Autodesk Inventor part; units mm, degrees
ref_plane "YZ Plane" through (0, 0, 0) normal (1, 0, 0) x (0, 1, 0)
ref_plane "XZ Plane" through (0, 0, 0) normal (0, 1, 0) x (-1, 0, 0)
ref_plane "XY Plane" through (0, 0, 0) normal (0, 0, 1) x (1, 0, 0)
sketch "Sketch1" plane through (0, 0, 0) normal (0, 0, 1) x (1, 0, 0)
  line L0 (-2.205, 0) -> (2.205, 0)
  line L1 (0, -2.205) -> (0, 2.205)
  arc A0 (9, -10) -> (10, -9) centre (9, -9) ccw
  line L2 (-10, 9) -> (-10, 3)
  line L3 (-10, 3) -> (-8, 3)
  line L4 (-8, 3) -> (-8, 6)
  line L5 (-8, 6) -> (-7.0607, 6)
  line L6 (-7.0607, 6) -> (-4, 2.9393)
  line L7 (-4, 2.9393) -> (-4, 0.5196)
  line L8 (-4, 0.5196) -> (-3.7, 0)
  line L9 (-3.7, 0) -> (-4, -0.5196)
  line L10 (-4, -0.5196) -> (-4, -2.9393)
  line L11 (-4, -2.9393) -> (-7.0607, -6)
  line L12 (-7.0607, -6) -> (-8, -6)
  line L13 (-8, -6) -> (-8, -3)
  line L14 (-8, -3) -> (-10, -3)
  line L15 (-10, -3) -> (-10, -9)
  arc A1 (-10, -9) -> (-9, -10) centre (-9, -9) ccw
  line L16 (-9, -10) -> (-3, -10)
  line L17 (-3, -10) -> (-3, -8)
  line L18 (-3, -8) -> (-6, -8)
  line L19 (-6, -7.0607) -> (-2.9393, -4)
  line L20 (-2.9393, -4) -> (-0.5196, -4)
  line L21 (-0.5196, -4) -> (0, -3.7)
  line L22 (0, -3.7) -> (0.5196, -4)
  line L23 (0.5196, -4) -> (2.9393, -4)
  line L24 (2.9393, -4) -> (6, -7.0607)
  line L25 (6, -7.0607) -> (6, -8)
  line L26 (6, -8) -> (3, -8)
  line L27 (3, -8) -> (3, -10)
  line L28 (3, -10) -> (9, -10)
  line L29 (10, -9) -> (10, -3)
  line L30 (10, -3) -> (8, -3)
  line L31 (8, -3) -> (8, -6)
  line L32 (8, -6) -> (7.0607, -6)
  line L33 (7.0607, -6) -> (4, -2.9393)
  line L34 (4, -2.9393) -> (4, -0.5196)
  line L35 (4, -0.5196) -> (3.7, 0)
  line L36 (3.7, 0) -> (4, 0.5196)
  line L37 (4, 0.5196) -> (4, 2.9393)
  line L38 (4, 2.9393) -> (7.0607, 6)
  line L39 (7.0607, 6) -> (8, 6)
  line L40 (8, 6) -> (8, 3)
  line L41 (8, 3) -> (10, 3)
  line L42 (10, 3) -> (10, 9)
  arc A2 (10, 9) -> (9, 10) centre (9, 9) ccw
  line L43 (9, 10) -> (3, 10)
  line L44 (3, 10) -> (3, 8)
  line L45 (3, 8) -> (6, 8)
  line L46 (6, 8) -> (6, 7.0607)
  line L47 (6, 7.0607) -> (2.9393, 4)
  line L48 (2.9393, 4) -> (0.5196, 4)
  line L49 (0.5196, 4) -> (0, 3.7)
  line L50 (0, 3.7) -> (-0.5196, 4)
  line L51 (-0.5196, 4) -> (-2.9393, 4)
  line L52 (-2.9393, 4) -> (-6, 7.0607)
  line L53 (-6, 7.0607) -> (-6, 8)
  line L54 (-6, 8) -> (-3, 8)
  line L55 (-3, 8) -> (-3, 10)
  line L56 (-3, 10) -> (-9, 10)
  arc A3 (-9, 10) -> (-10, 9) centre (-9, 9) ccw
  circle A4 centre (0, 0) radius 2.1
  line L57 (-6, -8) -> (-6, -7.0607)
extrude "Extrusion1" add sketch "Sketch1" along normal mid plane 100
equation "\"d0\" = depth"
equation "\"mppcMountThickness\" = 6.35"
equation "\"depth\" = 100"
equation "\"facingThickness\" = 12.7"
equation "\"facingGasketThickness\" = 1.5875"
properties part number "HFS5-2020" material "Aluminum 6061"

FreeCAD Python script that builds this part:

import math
import FreeCAD as App
import Part
import Sketcher

V = App.Vector
Q = App.Units.Quantity

doc = App.newDocument("Part")
body = doc.addObject("PartDesign::Body", "Body")

# Sketch on XY plane
sketch1 = body.newObject("Sketcher::SketchObject", "Sketch")
sketch1.AttachmentSupport = (doc.getObject("XY_Plane"), [""])
sketch1.MapMode = "FlatFace"
sketch1.addGeometry([
    Part.LineSegment(V(3, -10, 0), V(9, -10, 0)),  # 0
    Part.ArcOfCircle(Part.Circle(V(9, -9, 0), V(0, 0, 1), 1), math.radians(-90), math.radians(0)),  # 1
    Part.LineSegment(V(10, -9, 0), V(10, -3, 0)),  # 2
    Part.LineSegment(V(10, -3, 0), V(8, -3, 0)),  # 3
    Part.LineSegment(V(8, -3, 0), V(8, -6, 0)),  # 4
    Part.LineSegment(V(8, -6, 0), V(7.1, -6, 0)),  # 5
    Part.LineSegment(V(7.1, -6, 0), V(4, -2.9, 0)),  # 6
    Part.LineSegment(V(4, -2.9, 0), V(4, -0.5, 0)),  # 7
    Part.LineSegment(V(4, -0.5, 0), V(3.7, 0, 0)),  # 8
    Part.LineSegment(V(3.7, 0, 0), V(4, 0.5, 0)),  # 9
    Part.LineSegment(V(4, 0.5, 0), V(4, 2.9, 0)),  # 10
    Part.LineSegment(V(4, 2.9, 0), V(7.1, 6, 0)),  # 11
    Part.LineSegment(V(7.1, 6, 0), V(8, 6, 0)),  # 12
    Part.LineSegment(V(8, 6, 0), V(8, 3, 0)),  # 13
    Part.LineSegment(V(8, 3, 0), V(10, 3, 0)),  # 14
    Part.LineSegment(V(10, 3, 0), V(10, 9, 0)),  # 15
    Part.ArcOfCircle(Part.Circle(V(9, 9, 0), V(0, 0, 1), 1), math.radians(0), math.radians(90)),  # 16
    Part.LineSegment(V(9, 10, 0), V(3, 10, 0)),  # 17
    Part.LineSegment(V(3, 10, 0), V(3, 8, 0)),  # 18
    Part.LineSegment(V(3, 8, 0), V(6, 8, 0)),  # 19
    Part.LineSegment(V(6, 8, 0), V(6, 7.1, 0)),  # 20
    Part.LineSegment(V(6, 7.1, 0), V(2.9, 4, 0)),  # 21
    Part.LineSegment(V(2.9, 4, 0), V(0.5, 4, 0)),  # 22
    Part.LineSegment(V(0.5, 4, 0), V(0, 3.7, 0)),  # 23
    Part.LineSegment(V(0, 3.7, 0), V(-0.5, 4, 0)),  # 24
    Part.LineSegment(V(-0.5, 4, 0), V(-2.9, 4, 0)),  # 25
    Part.LineSegment(V(-2.9, 4, 0), V(-6, 7.1, 0)),  # 26
    Part.LineSegment(V(-6, 7.1, 0), V(-6, 8, 0)),  # 27
    Part.LineSegment(V(-6, 8, 0), V(-3, 8, 0)),  # 28
    Part.LineSegment(V(-3, 8, 0), V(-3, 10, 0)),  # 29
    Part.LineSegment(V(-3, 10, 0), V(-9, 10, 0)),  # 30
    Part.ArcOfCircle(Part.Circle(V(-9, 9, 0), V(0, 0, 1), 1), math.radians(90), math.radians(180)),  # 31
    Part.LineSegment(V(-10, 9, 0), V(-10, 3, 0)),  # 32
    Part.LineSegment(V(-10, 3, 0), V(-8, 3, 0)),  # 33
    Part.LineSegment(V(-8, 3, 0), V(-8, 6, 0)),  # 34
    Part.LineSegment(V(-8, 6, 0), V(-7.1, 6, 0)),  # 35
    Part.LineSegment(V(-7.1, 6, 0), V(-4, 2.9, 0)),  # 36
    Part.LineSegment(V(-4, 2.9, 0), V(-4, 0.5, 0)),  # 37
    Part.LineSegment(V(-4, 0.5, 0), V(-3.7, 0, 0)),  # 38
    Part.LineSegment(V(-3.7, 0, 0), V(-4, -0.5, 0)),  # 39
    Part.LineSegment(V(-4, -0.5, 0), V(-4, -2.9, 0)),  # 40
    Part.LineSegment(V(-4, -2.9, 0), V(-7.1, -6, 0)),  # 41
    Part.LineSegment(V(-7.1, -6, 0), V(-8, -6, 0)),  # 42
    Part.LineSegment(V(-8, -6, 0), V(-8, -3, 0)),  # 43
    Part.LineSegment(V(-8, -3, 0), V(-10, -3, 0)),  # 44
    Part.LineSegment(V(-10, -3, 0), V(-10, -9, 0)),  # 45
    Part.ArcOfCircle(Part.Circle(V(-9, -9, 0), V(0, 0, 1), 1), math.radians(180), math.radians(270)),  # 46
    Part.LineSegment(V(-9, -10, 0), V(-3, -10, 0)),  # 47
    Part.LineSegment(V(-3, -10, 0), V(-3, -8, 0)),  # 48
    Part.LineSegment(V(-3, -8, 0), V(-6, -8, 0)),  # 49
    Part.LineSegment(V(-6, -8, 0), V(-6, -7.1, 0)),  # 50
    Part.LineSegment(V(-6, -7.1, 0), V(-2.9, -4, 0)),  # 51
    Part.LineSegment(V(-2.9, -4, 0), V(-0.5, -4, 0)),  # 52
    Part.LineSegment(V(-0.5, -4, 0), V(0, -3.7, 0)),  # 53
    Part.LineSegment(V(0, -3.7, 0), V(0.5, -4, 0)),  # 54
    Part.LineSegment(V(0.5, -4, 0), V(2.9, -4, 0)),  # 55
    Part.LineSegment(V(2.9, -4, 0), V(6, -7.1, 0)),  # 56
    Part.LineSegment(V(6, -7.1, 0), V(6, -8, 0)),  # 57
    Part.LineSegment(V(6, -8, 0), V(3, -8, 0)),  # 58
    Part.LineSegment(V(3, -8, 0), V(3, -10, 0)),  # 59
    Part.Circle(V(0, 0, 0), V(0, 0, 1), 2.1),  # 60
], False)
sketch1.addConstraint([
    Sketcher.Constraint("Tangent", 0, 2, 1, 1),
    Sketcher.Constraint("Tangent", 1, 2, 2, 1),
    Sketcher.Constraint("Coincident", 2, 2, 3, 1),
    Sketcher.Constraint("Coincident", 3, 2, 4, 1),
    Sketcher.Constraint("Coincident", 4, 2, 5, 1),
    Sketcher.Constraint("Coincident", 5, 2, 6, 1),
    Sketcher.Constraint("Coincident", 6, 2, 7, 1),
    Sketcher.Constraint("Coincident", 7, 2, 8, 1),
    Sketcher.Constraint("Coincident", 8, 2, 9, 1),
    Sketcher.Constraint("Coincident", 9, 2, 10, 1),
    Sketcher.Constraint("Coincident", 10, 2, 11, 1),
    Sketcher.Constraint("Coincident", 11, 2, 12, 1),
    Sketcher.Constraint("Coincident", 12, 2, 13, 1),
    Sketcher.Constraint("Coincident", 13, 2, 14, 1),
    Sketcher.Constraint("Coincident", 14, 2, 15, 1),
    Sketcher.Constraint("Tangent", 15, 2, 16, 1),
    Sketcher.Constraint("Tangent", 16, 2, 17, 1),
    Sketcher.Constraint("Coincident", 17, 2, 18, 1),
    Sketcher.Constraint("Coincident", 18, 2, 19, 1),
    Sketcher.Constraint("Coincident", 19, 2, 20, 1),
    Sketcher.Constraint("Coincident", 20, 2, 21, 1),
    Sketcher.Constraint("Coincident", 21, 2, 22, 1),
    Sketcher.Constraint("Coincident", 22, 2, 23, 1),
    Sketcher.Constraint("Coincident", 23, 2, 24, 1),
    Sketcher.Constraint("Coincident", 24, 2, 25, 1),
    Sketcher.Constraint("Coincident", 25, 2, 26, 1),
    Sketcher.Constraint("Coincident", 26, 2, 27, 1),
    Sketcher.Constraint("Coincident", 27, 2, 28, 1),
    Sketcher.Constraint("Coincident", 28, 2, 29, 1),
    Sketcher.Constraint("Coincident", 29, 2, 30, 1),
    Sketcher.Constraint("Tangent", 30, 2, 31, 1),
    Sketcher.Constraint("Tangent", 31, 2, 32, 1),
    Sketcher.Constraint("Coincident", 32, 2, 33, 1),
    Sketcher.Constraint("Coincident", 33, 2, 34, 1),
    Sketcher.Constraint("Coincident", 34, 2, 35, 1),
    Sketcher.Constraint("Coincident", 35, 2, 36, 1),
    Sketcher.Constraint("Coincident", 36, 2, 37, 1),
    Sketcher.Constraint("Coincident", 37, 2, 38, 1),
    Sketcher.Constraint("Coincident", 38, 2, 39, 1),
    Sketcher.Constraint("Coincident", 39, 2, 40, 1),
    Sketcher.Constraint("Coincident", 40, 2, 41, 1),
    Sketcher.Constraint("Coincident", 41, 2, 42, 1),
    Sketcher.Constraint("Coincident", 42, 2, 43, 1),
    Sketcher.Constraint("Coincident", 43, 2, 44, 1),
    Sketcher.Constraint("Coincident", 44, 2, 45, 1),
    Sketcher.Constraint("Tangent", 45, 2, 46, 1),
    Sketcher.Constraint("Tangent", 46, 2, 47, 1),
    Sketcher.Constraint("Coincident", 47, 2, 48, 1),
    Sketcher.Constraint("Coincident", 48, 2, 49, 1),
    Sketcher.Constraint("Coincident", 49, 2, 50, 1),
    Sketcher.Constraint("Coincident", 50, 2, 51, 1),
    Sketcher.Constraint("Coincident", 51, 2, 52, 1),
    Sketcher.Constraint("Coincident", 52, 2, 53, 1),
    Sketcher.Constraint("Coincident", 53, 2, 54, 1),
    Sketcher.Constraint("Coincident", 54, 2, 55, 1),
    Sketcher.Constraint("Coincident", 55, 2, 56, 1),
    Sketcher.Constraint("Coincident", 56, 2, 57, 1),
    Sketcher.Constraint("Coincident", 57, 2, 58, 1),
    Sketcher.Constraint("Coincident", 58, 2, 59, 1),
    Sketcher.Constraint("Coincident", 59, 2, 0, 1),
    Sketcher.Constraint("Horizontal", 0),
    Sketcher.Constraint("Vertical", 2),
    Sketcher.Constraint("Horizontal", 3),
    Sketcher.Constraint("Vertical", 4),
    Sketcher.Constraint("Horizontal", 5),
    Sketcher.Constraint("Vertical", 7),
    Sketcher.Constraint("Vertical", 10),
    Sketcher.Constraint("Horizontal", 12),
    Sketcher.Constraint("Vertical", 13),
    Sketcher.Constraint("Horizontal", 14),
    Sketcher.Constraint("Vertical", 15),
    Sketcher.Constraint("Horizontal", 17),
    Sketcher.Constraint("Vertical", 18),
    Sketcher.Constraint("Horizontal", 19),
    Sketcher.Constraint("Vertical", 20),
    Sketcher.Constraint("Horizontal", 22),
    Sketcher.Constraint("Horizontal", 25),
    Sketcher.Constraint("Vertical", 27),
    Sketcher.Constraint("Horizontal", 28),
    Sketcher.Constraint("Vertical", 29),
    Sketcher.Constraint("Horizontal", 30),
    Sketcher.Constraint("Vertical", 32),
    Sketcher.Constraint("Horizontal", 33),
    Sketcher.Constraint("Vertical", 34),
    Sketcher.Constraint("Horizontal", 35),
    Sketcher.Constraint("Vertical", 37),
    Sketcher.Constraint("Vertical", 40),
    Sketcher.Constraint("Horizontal", 42),
    Sketcher.Constraint("Vertical", 43),
    Sketcher.Constraint("Horizontal", 44),
    Sketcher.Constraint("Vertical", 45),
    Sketcher.Constraint("Horizontal", 47),
    Sketcher.Constraint("Vertical", 48),
    Sketcher.Constraint("Horizontal", 49),
    Sketcher.Constraint("Vertical", 50),
    Sketcher.Constraint("Horizontal", 52),
    Sketcher.Constraint("Horizontal", 55),
    Sketcher.Constraint("Vertical", 57),
    Sketcher.Constraint("Horizontal", 58),
    Sketcher.Constraint("Vertical", 59),
    Sketcher.Constraint("Coincident", 60, 3, -1, 1),
    Sketcher.Constraint("Equal", 1, 16),
    Sketcher.Constraint("Equal", 16, 31),
    Sketcher.Constraint("Equal", 31, 46),
    Sketcher.Constraint("Symmetric", 1, 3, 31, 3, -1, 1),
    Sketcher.Constraint("Symmetric", 16, 3, 46, 3, -1, 1),
    Sketcher.Constraint("Symmetric", 3, 2, 33, 2, -1, 1),
    Sketcher.Constraint("Symmetric", 5, 2, 35, 2, -1, 1),
    Sketcher.Constraint("Symmetric", 6, 2, 36, 2, -1, 1),
    Sketcher.Constraint("Symmetric", 8, 2, 38, 2, -1, 1),
    Sketcher.Constraint("Symmetric", 9, 2, 39, 2, -1, 1),
    Sketcher.Constraint("Symmetric", 11, 2, 41, 2, -1, 1),
    Sketcher.Constraint("Symmetric", 13, 2, 43, 2, -1, 1),
    Sketcher.Constraint("Symmetric", 18, 2, 48, 2, -1, 1),
    Sketcher.Constraint("Symmetric", 20, 2, 50, 2, -1, 1),
    Sketcher.Constraint("Symmetric", 21, 2, 51, 2, -1, 1),
    Sketcher.Constraint("Symmetric", 23, 2, 53, 2, -1, 1),
    Sketcher.Constraint("Symmetric", 24, 2, 54, 2, -1, 1),
    Sketcher.Constraint("Symmetric", 26, 2, 56, 2, -1, 1),
    Sketcher.Constraint("Symmetric", 28, 2, 58, 2, -1, 1),
    Sketcher.Constraint("Symmetric", 16, 3, 31, 3, -2),
    Sketcher.Constraint("Symmetric", 22, 2, 24, 2, -2),
    Sketcher.Constraint("Symmetric", 20, 2, 26, 2, -2),
    Sketcher.Constraint("Symmetric", 18, 2, 28, 2, -2),
    Sketcher.Constraint("Symmetric", 13, 2, 33, 2, -2),
    Sketcher.Constraint("Symmetric", 11, 2, 35, 2, -2),
    Sketcher.Constraint("Symmetric", 10, 2, 36, 2, -2),
    Sketcher.Constraint("PointOnObject", 8, 2, -1),
    Sketcher.Constraint("PointOnObject", 23, 2, -2),
    Sketcher.Constraint("Perpendicular", 6, 11),
    Sketcher.Constraint("Parallel", 11, 21),
    Sketcher.Constraint("Perpendicular", 8, 23),
    Sketcher.Constraint("Perpendicular", 9, 24),
    Sketcher.Constraint("Perpendicular", 21, 26),
    Sketcher.Constraint("Perpendicular", 23, 38),
    Sketcher.Constraint("Perpendicular", 36, 41),
    Sketcher.Constraint("Perpendicular", 38, 53),
    Sketcher.Constraint("Perpendicular", 51, 56),
    Sketcher.Constraint("Equal", 47, 2),
    Sketcher.Constraint("Equal", 58, 4),
    Sketcher.Constraint("Equal", 55, 7),
    Sketcher.Constraint("Equal", 44, 18),
    Sketcher.Constraint("Equal", 42, 20),
    Sketcher.Constraint("Equal", 11, 21),
    Sketcher.Constraint("Equal", 9, 23),
    Sketcher.Constraint("Radius", 1, 1.0),
    Sketcher.Constraint("Diameter", 60, 4.2),
    Sketcher.Constraint("DistanceX", 0, 1, 0, 2, 6.0),
    Sketcher.Constraint("DistanceX", 3, 2, 3, 1, 2.0),
    Sketcher.Constraint("DistanceX", 19, 1, 19, 2, 3.0),
    Sketcher.Constraint("Angle", 8, Q("120.0007 deg")),
    Sketcher.Constraint("DistanceX", -1, 1, 1, 3, 9.0),
    Sketcher.Constraint("DistanceX", -1, 1, 6, 2, 4.0),
    Sketcher.Constraint("Distance", 8, 0.6),
    Sketcher.Constraint("DistanceX", 5, 2, 5, 1, 0.9393),
])
pad1 = body.newObject("PartDesign::Pad", "Pad")
pad1.Profile = sketch1
pad1.Length = 100
pad1.Midplane = True

doc.recompute()
